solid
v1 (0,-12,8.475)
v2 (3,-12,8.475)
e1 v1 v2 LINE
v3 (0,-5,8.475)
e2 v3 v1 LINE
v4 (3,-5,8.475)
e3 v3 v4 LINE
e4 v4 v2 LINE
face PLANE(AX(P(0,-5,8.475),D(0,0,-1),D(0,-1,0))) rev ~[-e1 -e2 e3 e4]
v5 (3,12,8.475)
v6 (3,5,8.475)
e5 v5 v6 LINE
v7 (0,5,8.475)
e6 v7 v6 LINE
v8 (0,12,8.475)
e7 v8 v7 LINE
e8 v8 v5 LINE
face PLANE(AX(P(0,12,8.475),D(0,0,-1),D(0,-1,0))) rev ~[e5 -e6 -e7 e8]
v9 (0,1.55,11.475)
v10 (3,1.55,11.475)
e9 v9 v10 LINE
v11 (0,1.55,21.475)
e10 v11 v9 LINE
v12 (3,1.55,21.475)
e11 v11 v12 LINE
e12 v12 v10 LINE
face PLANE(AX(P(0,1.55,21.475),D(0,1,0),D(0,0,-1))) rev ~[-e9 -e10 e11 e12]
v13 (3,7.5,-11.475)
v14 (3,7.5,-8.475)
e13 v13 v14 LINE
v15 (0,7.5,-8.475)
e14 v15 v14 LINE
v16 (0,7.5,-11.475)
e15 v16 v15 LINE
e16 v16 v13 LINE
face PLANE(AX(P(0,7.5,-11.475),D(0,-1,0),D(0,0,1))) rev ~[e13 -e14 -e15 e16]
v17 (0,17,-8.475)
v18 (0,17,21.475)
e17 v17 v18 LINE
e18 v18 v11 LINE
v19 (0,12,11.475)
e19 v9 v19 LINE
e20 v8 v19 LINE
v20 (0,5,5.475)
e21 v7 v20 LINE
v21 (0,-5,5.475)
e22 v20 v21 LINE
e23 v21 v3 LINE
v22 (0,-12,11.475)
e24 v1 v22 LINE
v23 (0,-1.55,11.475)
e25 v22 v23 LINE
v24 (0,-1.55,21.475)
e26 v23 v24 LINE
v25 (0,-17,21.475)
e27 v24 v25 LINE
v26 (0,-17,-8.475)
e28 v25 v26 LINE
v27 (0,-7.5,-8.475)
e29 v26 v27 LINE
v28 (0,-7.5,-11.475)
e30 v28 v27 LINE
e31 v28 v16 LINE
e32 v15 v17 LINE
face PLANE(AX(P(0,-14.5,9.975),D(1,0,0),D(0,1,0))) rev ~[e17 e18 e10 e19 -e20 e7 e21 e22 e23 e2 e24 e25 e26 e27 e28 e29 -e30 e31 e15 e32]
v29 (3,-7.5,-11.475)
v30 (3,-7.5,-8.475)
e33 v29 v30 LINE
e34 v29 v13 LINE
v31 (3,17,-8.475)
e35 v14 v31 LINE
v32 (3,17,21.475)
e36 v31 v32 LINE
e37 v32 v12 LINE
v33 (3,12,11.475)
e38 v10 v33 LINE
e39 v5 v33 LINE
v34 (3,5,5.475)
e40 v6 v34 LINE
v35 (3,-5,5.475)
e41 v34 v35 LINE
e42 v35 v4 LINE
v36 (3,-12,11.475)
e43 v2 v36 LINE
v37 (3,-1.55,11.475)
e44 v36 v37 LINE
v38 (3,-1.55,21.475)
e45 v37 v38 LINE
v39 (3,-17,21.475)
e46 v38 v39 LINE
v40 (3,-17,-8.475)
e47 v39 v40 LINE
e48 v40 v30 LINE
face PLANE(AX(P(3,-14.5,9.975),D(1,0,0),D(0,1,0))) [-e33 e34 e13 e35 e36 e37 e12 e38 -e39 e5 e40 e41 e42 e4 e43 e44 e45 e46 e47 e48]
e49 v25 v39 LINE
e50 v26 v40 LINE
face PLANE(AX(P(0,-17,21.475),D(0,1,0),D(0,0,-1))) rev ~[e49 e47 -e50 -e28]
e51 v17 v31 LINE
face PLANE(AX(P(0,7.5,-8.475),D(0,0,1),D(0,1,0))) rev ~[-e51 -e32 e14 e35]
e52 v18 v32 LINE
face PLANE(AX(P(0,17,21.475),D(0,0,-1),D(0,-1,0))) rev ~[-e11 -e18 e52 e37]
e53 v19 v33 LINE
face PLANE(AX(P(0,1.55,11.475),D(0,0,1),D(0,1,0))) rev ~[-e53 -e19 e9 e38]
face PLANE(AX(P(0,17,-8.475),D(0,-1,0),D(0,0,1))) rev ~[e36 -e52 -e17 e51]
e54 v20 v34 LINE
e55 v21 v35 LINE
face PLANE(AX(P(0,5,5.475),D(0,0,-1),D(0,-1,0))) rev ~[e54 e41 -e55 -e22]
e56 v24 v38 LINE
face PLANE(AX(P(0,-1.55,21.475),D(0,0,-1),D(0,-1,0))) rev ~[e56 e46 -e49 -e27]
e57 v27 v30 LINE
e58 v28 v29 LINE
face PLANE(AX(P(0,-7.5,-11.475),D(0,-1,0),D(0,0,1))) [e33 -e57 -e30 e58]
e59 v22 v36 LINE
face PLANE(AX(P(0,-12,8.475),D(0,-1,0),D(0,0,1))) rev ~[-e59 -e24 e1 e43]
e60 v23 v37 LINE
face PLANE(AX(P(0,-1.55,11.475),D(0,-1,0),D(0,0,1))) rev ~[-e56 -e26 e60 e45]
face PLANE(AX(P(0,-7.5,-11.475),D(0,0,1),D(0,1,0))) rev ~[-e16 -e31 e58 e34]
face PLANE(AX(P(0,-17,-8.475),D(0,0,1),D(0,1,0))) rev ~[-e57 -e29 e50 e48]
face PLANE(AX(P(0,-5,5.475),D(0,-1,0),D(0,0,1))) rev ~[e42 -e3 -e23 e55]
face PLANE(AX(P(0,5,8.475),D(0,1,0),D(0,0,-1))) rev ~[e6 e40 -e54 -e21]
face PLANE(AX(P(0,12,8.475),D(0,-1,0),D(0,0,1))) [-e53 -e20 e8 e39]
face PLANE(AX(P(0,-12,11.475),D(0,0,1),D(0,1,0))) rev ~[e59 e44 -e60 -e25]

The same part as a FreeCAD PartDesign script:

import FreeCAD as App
import Part
import Sketcher
from FreeCAD import Vector
Q = App.Units.Quantity

doc = App.newDocument("Part")
params = doc.addObject("Spreadsheet::Sheet", "Params")
for row, (alias, value) in enumerate([
    ("sketch1_width", "15 mm"),
    ("sketch1_width2", "7 mm"),
    ("sketch1_width3", "10 mm"),
    ("sketch1_height", "3 mm"),
    ("sketch1_width4", "9.5 mm"),
    ("pad1_length", "3 mm"),
], start=1):
    params.set(f"A{row}", alias)
    params.set(f"B{row}", "=" + value)
    params.setAlias(f"B{row}", alias)

body = doc.addObject("PartDesign::Body", "Body")

# Sketch on YZ plane
sketch1 = doc.addObject("Sketcher::SketchObject", "Sketch")
body.addObject(sketch1)
sketch1.AttachmentSupport = (doc.YZ_Plane, [""])
sketch1.MapMode = "FlatFace"
sketch1.addGeometry([
    Part.LineSegment(Vector(-17, -8.5, 0), Vector(-7.5, -8.5, 0)),  # 0
    Part.LineSegment(Vector(-7.5, -8.5, 0), Vector(-7.5, -11.5, 0)),  # 1
    Part.LineSegment(Vector(-7.5, -11.5, 0), Vector(7.5, -11.5, 0)),  # 2
    Part.LineSegment(Vector(7.5, -11.5, 0), Vector(7.5, -8.5, 0)),  # 3
    Part.LineSegment(Vector(7.5, -8.5, 0), Vector(17, -8.5, 0)),  # 4
    Part.LineSegment(Vector(17, -8.5, 0), Vector(17, 21.5, 0)),  # 5
    Part.LineSegment(Vector(17, 21.5, 0), Vector(1.6, 21.5, 0)),  # 6
    Part.LineSegment(Vector(1.6, 21.5, 0), Vector(1.6, 11.5, 0)),  # 7
    Part.LineSegment(Vector(1.6, 11.5, 0), Vector(12, 11.5, 0)),  # 8
    Part.LineSegment(Vector(12, 11.5, 0), Vector(12, 8.5, 0)),  # 9
    Part.LineSegment(Vector(12, 8.5, 0), Vector(5, 8.5, 0)),  # 10
    Part.LineSegment(Vector(5, 8.5, 0), Vector(5, 5.5, 0)),  # 11
    Part.LineSegment(Vector(5, 5.5, 0), Vector(-5, 5.5, 0)),  # 12
    Part.LineSegment(Vector(-5, 5.5, 0), Vector(-5, 8.5, 0)),  # 13
    Part.LineSegment(Vector(-5, 8.5, 0), Vector(-12, 8.5, 0)),  # 14
    Part.LineSegment(Vector(-12, 8.5, 0), Vector(-12, 11.5, 0)),  # 15
    Part.LineSegment(Vector(-12, 11.5, 0), Vector(-1.6, 11.5, 0)),  # 16
    Part.LineSegment(Vector(-1.6, 11.5, 0), Vector(-1.6, 21.5, 0)),  # 17
    Part.LineSegment(Vector(-1.6, 21.5, 0), Vector(-17, 21.5, 0)),  # 18
    Part.LineSegment(Vector(-17, 21.5, 0), Vector(-17, -8.5, 0)),  # 19
], False)
sketch1.addConstraint([
    Sketcher.Constraint("Coincident", 0, 2, 1, 1),
    Sketcher.Constraint("Coincident", 1, 2, 2, 1),
    Sketcher.Constraint("Coincident", 2, 2, 3, 1),
    Sketcher.Constraint("Coincident", 3, 2, 4, 1),
    Sketcher.Constraint("Coincident", 4, 2, 5, 1),
    Sketcher.Constraint("Coincident", 5, 2, 6, 1),
    Sketcher.Constraint("Coincident", 6, 2, 7, 1),
    Sketcher.Constraint("Coincident", 7, 2, 8, 1),
    Sketcher.Constraint("Coincident", 8, 2, 9, 1),
    Sketcher.Constraint("Coincident", 9, 2, 10, 1),
    Sketcher.Constraint("Coincident", 10, 2, 11, 1),
    Sketcher.Constraint("Coincident", 11, 2, 12, 1),
    Sketcher.Constraint("Coincident", 12, 2, 13, 1),
    Sketcher.Constraint("Coincident", 13, 2, 14, 1),
    Sketcher.Constraint("Coincident", 14, 2, 15, 1),
    Sketcher.Constraint("Coincident", 15, 2, 16, 1),
    Sketcher.Constraint("Coincident", 16, 2, 17, 1),
    Sketcher.Constraint("Coincident", 17, 2, 18, 1),
    Sketcher.Constraint("Coincident", 18, 2, 19, 1),
    Sketcher.Constraint("Coincident", 19, 2, 0, 1),
    Sketcher.Constraint("Horizontal", 0),
    Sketcher.Constraint("Vertical", 1),
    Sketcher.Constraint("Horizontal", 2),
    Sketcher.Constraint("Vertical", 3),
    Sketcher.Constraint("Horizontal", 4),
    Sketcher.Constraint("Vertical", 5),
    Sketcher.Constraint("Horizontal", 6),
    Sketcher.Constraint("Vertical", 7),
    Sketcher.Constraint("Horizontal", 8),
    Sketcher.Constraint("Vertical", 9),
    Sketcher.Constraint("Horizontal", 10),
    Sketcher.Constraint("Vertical", 11),
    Sketcher.Constraint("Horizontal", 12),
    Sketcher.Constraint("Vertical", 13),
    Sketcher.Constraint("Horizontal", 14),
    Sketcher.Constraint("Vertical", 15),
    Sketcher.Constraint("Horizontal", 16),
    Sketcher.Constraint("Vertical", 17),
    Sketcher.Constraint("Horizontal", 18),
    Sketcher.Constraint("Vertical", 19),
    Sketcher.Constraint("Symmetric", 0, 2, 3, 2, -2),
    Sketcher.Constraint("Symmetric", 10, 2, 13, 2, -2),
    Sketcher.Constraint("Symmetric", 8, 2, 15, 2, -2),
    Sketcher.Constraint("Symmetric", 6, 2, 17, 2, -2),
    Sketcher.Constraint("Equal", 0, 4),
    Sketcher.Constraint("Equal", 12, 7),
    Sketcher.Constraint("Equal", 3, 9),
    Sketcher.Constraint("Equal", 9, 11),
    Sketcher.Constraint("DistanceX", 2, 1, 2, 2, Q("15 mm")),
    Sketcher.Constraint("DistanceX", 10, 2, 10, 1, Q("7 mm")),
    Sketcher.Constraint("DistanceX", 12, 2, 12, 1, Q("10 mm")),
    Sketcher.Constraint("DistanceY", 1, 2, 1, 1, Q("3 mm")),
    Sketcher.Constraint("DistanceX", 0, 1, 0, 2, Q("9.5 mm")),
    Sketcher.Constraint("DistanceX", 6, 2, 6, 1, Q("15.45 mm")),
    Sketcher.Constraint("DistanceY", 5, 1, 5, 2, Q("29.95 mm")),
    Sketcher.Constraint("DistanceY", 0, 2, -1, 1, Q("8.475 mm")),
])
sketch1.setExpression("Constraints[48]", "Params.sketch1_width")
sketch1.setExpression("Constraints[49]", "Params.sketch1_width2")
sketch1.setExpression("Constraints[50]", "Params.sketch1_width3")
sketch1.setExpression("Constraints[51]", "Params.sketch1_height")
sketch1.setExpression("Constraints[52]", "Params.sketch1_width4")
pad1 = doc.addObject("PartDesign::Pad", "Pad")
body.addObject(pad1)
pad1.Profile = sketch1
pad1.setExpression("Length", "Params.pad1_length")

doc.recompute()
